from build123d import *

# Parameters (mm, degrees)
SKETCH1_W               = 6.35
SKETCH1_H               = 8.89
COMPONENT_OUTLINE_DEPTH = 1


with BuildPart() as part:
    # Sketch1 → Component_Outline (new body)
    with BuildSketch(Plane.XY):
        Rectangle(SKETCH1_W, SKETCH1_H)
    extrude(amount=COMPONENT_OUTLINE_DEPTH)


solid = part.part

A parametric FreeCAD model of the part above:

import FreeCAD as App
import Part
import Sketcher
Q = App.Units.Quantity


def add_polygon(sketch, points):
    """Adds a closed chain of lines whose ends are joined by coincident constraints."""
    first, n = sketch.GeometryCount, len(points)
    for a, b in zip(points, points[1:] + points[:1]):
        sketch.addGeometry(Part.LineSegment(App.Vector(*a, 0), App.Vector(*b, 0)), False)
    for i in range(n):
        sketch.addConstraint(Sketcher.Constraint("Coincident", first + i, 2, first + (i + 1) % n, 1))

doc = App.newDocument("Part")
body = doc.addObject("PartDesign::Body", "Body")

# Sketch on XY plane
sketch1 = body.newObject("Sketcher::SketchObject", "Sketch")
sketch1.AttachmentSupport = (doc.getObject("XY_Plane"), [""])
sketch1.MapMode = "FlatFace"
add_polygon(sketch1, [(-3, 4), (-3, -4), (3, -4), (3, 4)])  # lines 0-3
sketch1.addConstraint(Sketcher.Constraint("Vertical", 0))
sketch1.addConstraint(Sketcher.Constraint("Horizontal", 1))
sketch1.addConstraint(Sketcher.Constraint("Vertical", 2))
sketch1.addConstraint(Sketcher.Constraint("Horizontal", 3))
sketch1.addConstraint(Sketcher.Constraint("Symmetric", 0, 2, 2, 2, -1, 1))
sketch1.addConstraint(Sketcher.Constraint("DistanceX", 1, 1, 1, 2, Q("0.25 in")))
sketch1.addConstraint(Sketcher.Constraint("DistanceY", 0, 2, 0, 1, Q("0.35 in")))
pad1 = body.newObject("PartDesign::Pad", "Pad")
pad1.Profile = sketch1
pad1.Length = 1

doc.recompute()
